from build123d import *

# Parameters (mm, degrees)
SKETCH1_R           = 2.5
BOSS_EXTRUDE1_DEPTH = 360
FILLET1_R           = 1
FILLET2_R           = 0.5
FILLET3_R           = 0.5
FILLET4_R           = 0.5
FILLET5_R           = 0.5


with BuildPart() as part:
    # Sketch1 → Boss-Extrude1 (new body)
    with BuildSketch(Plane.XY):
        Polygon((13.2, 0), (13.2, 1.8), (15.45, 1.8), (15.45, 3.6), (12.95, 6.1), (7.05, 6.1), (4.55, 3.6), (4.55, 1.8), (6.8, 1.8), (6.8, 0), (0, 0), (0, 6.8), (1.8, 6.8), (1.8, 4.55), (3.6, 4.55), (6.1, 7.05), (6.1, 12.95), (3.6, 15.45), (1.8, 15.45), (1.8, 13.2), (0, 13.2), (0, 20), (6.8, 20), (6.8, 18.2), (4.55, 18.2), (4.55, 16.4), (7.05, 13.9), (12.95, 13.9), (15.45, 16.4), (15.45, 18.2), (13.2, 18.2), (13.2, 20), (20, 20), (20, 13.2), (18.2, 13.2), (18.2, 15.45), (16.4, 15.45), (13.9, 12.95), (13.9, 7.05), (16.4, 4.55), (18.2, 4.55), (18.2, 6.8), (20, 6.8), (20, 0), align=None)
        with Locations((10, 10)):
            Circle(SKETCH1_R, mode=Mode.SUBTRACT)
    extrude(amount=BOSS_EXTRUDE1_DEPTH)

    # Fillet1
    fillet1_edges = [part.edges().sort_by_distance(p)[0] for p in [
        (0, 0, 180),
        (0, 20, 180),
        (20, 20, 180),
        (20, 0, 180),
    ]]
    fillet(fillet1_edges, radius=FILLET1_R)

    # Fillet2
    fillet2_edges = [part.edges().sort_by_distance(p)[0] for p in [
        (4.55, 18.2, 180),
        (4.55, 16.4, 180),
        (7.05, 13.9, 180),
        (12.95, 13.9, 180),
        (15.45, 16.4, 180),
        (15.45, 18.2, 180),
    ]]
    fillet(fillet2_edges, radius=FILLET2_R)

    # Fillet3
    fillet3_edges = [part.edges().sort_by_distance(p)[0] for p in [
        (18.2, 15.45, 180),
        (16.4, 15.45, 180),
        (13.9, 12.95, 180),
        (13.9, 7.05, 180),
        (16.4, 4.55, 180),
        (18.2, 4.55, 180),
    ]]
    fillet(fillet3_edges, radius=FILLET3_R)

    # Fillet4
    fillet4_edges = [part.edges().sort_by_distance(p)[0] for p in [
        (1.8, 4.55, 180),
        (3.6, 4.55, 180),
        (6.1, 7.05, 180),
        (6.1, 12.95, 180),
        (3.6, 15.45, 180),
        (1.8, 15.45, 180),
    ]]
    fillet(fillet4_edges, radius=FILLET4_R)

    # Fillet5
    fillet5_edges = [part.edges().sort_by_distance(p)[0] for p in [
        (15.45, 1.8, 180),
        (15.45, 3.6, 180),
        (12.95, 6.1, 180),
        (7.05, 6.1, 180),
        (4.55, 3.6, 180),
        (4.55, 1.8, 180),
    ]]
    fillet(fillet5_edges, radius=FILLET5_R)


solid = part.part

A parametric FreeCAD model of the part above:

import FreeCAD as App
import Part
import Sketcher
from FreeCAD import Vector


def edges_at(feature, points):
    """Names of the edges that pass closest to the given points."""
    edges = feature.Shape.Edges
    near = lambda p: min(range(len(edges)), key=lambda i: edges[i].distToShape(Part.Vertex(*p))[0])
    return sorted({f"Edge{near(p) + 1}" for p in points})

doc = App.newDocument("Part")
params = doc.addObject("Spreadsheet::Sheet", "Params")
for row, (alias, value) in enumerate([
    ("sketch1_diameter", "5 mm"),
    ("sketch1_width", "6.8 mm"),
    ("sketch1_width2", "1.8 mm"),
    ("sketch1_width3", "5.9 mm"),
    ("sketch1_width4", "2.25 mm"),
    ("pad1_length", "360 mm"),
    ("fillet_radius", "1 mm"),
    ("fillet2_radius", "0.5 mm"),
    ("fillet3_radius", "0.5 mm"),
    ("fillet4_radius", "0.5 mm"),
    ("fillet5_radius", "0.5 mm"),
], start=1):
    params.set(f"A{row}", alias)
    params.set(f"B{row}", "=" + value)
    params.setAlias(f"B{row}", alias)

body = doc.addObject("PartDesign::Body", "Body")

# Sketch on XY plane
sketch1 = body.newObject("Sketcher::SketchObject", "Sketch")
sketch1.AttachmentSupport = (doc.getObject("XY_Plane"), [""])
sketch1.MapMode = "FlatFace"
sketch1.addGeometry([
    Part.LineSegment(Vector(13.2, 1.8, 0), Vector(13.2, 0, 0)),  # 0
    Part.LineSegment(Vector(13.2, 0, 0), Vector(20, 0, 0)),  # 1
    Part.LineSegment(Vector(20, 0, 0), Vector(20, 6.8, 0)),  # 2
    Part.LineSegment(Vector(20, 6.8, 0), Vector(18.2, 6.8, 0)),  # 3
    Part.LineSegment(Vector(18.2, 6.8, 0), Vector(18.2, 4.5, 0)),  # 4
    Part.LineSegment(Vector(18.2, 4.5, 0), Vector(16.4, 4.5, 0)),  # 5
    Part.LineSegment(Vector(16.4, 4.5, 0), Vector(13.9, 7, 0)),  # 6
    Part.LineSegment(Vector(13.9, 7, 0), Vector(13.9, 12.9, 0)),  # 7
    Part.LineSegment(Vector(13.9, 12.9, 0), Vector(16.4, 15.4, 0)),  # 8
    Part.LineSegment(Vector(16.4, 15.4, 0), Vector(18.2, 15.4, 0)),  # 9
    Part.LineSegment(Vector(18.2, 15.4, 0), Vector(18.2, 13.2, 0)),  # 10
    Part.LineSegment(Vector(18.2, 13.2, 0), Vector(20, 13.2, 0)),  # 11
    Part.LineSegment(Vector(20, 13.2, 0), Vector(20, 20, 0)),  # 12
    Part.LineSegment(Vector(20, 20, 0), Vector(13.2, 20, 0)),  # 13
    Part.LineSegment(Vector(13.2, 20, 0), Vector(13.2, 18.2, 0)),  # 14
    Part.LineSegment(Vector(13.2, 18.2, 0), Vector(15.4, 18.2, 0)),  # 15
    Part.LineSegment(Vector(15.4, 18.2, 0), Vector(15.4, 16.4, 0)),  # 16
    Part.LineSegment(Vector(15.4, 16.4, 0), Vector(12.9, 13.9, 0)),  # 17
    Part.LineSegment(Vector(12.9, 13.9, 0), Vector(7, 13.9, 0)),  # 18
    Part.LineSegment(Vector(7, 13.9, 0), Vector(4.5, 16.4, 0)),  # 19
    Part.LineSegment(Vector(4.5, 16.4, 0), Vector(4.5, 18.2, 0)),  # 20
    Part.LineSegment(Vector(4.5, 18.2, 0), Vector(6.8, 18.2, 0)),  # 21
    Part.LineSegment(Vector(6.8, 18.2, 0), Vector(6.8, 20, 0)),  # 22
    Part.LineSegment(Vector(6.8, 20, 0), Vector(0, 20, 0)),  # 23
    Part.LineSegment(Vector(0, 20, 0), Vector(0, 13.2, 0)),  # 24
    Part.LineSegment(Vector(0, 13.2, 0), Vector(1.8, 13.2, 0)),  # 25
    Part.LineSegment(Vector(1.8, 13.2, 0), Vector(1.8, 15.4, 0)),  # 26
    Part.LineSegment(Vector(1.8, 15.4, 0), Vector(3.6, 15.4, 0)),  # 27
    Part.LineSegment(Vector(3.6, 15.4, 0), Vector(6.1, 12.9, 0)),  # 28
    Part.LineSegment(Vector(6.1, 12.9, 0), Vector(6.1, 7, 0)),  # 29
    Part.LineSegment(Vector(6.1, 7, 0), Vector(3.6, 4.5, 0)),  # 30
    Part.LineSegment(Vector(3.6, 4.5, 0), Vector(1.8, 4.5, 0)),  # 31
    Part.LineSegment(Vector(1.8, 4.5, 0), Vector(1.8, 6.8, 0)),  # 32
    Part.LineSegment(Vector(1.8, 6.8, 0), Vector(0, 6.8, 0)),  # 33
    Part.LineSegment(Vector(0, 6.8, 0), Vector(0, 0, 0)),  # 34
    Part.LineSegment(Vector(0, 0, 0), Vector(6.8, 0, 0)),  # 35
    Part.LineSegment(Vector(6.8, 0, 0), Vector(6.8, 1.8, 0)),  # 36
    Part.LineSegment(Vector(6.8, 1.8, 0), Vector(4.5, 1.8, 0)),  # 37
    Part.LineSegment(Vector(4.5, 1.8, 0), Vector(4.5, 3.6, 0)),  # 38
    Part.LineSegment(Vector(4.5, 3.6, 0), Vector(7, 6.1, 0)),  # 39
    Part.LineSegment(Vector(7, 6.1, 0), Vector(12.9, 6.1, 0)),  # 40
    Part.LineSegment(Vector(12.9, 6.1, 0), Vector(15.4, 3.6, 0)),  # 41
    Part.LineSegment(Vector(15.4, 3.6, 0), Vector(15.4, 1.8, 0)),  # 42
    Part.LineSegment(Vector(15.4, 1.8, 0), Vector(13.2, 1.8, 0)),  # 43
    Part.Circle(Vector(10, 10, 0), Vector(0, 0, 1), 2.5),  # 44
], False)
sketch1.addConstraint([
    Sketcher.Constraint("Coincident", 0, 2, 1, 1),
    Sketcher.Constraint("Coincident", 1, 2, 2, 1),
    Sketcher.Constraint("Coincident", 2, 2, 3, 1),
    Sketcher.Constraint("Coincident", 3, 2, 4, 1),
    Sketcher.Constraint("Coincident", 4, 2, 5, 1),
    Sketcher.Constraint("Coincident", 5, 2, 6, 1),
    Sketcher.Constraint("Coincident", 6, 2, 7, 1),
    Sketcher.Constraint("Coincident", 7, 2, 8, 1),
    Sketcher.Constraint("Coincident", 8, 2, 9, 1),
    Sketcher.Constraint("Coincident", 9, 2, 10, 1),
    Sketcher.Constraint("Coincident", 10, 2, 11, 1),
    Sketcher.Constraint("Coincident", 11, 2, 12, 1),
    Sketcher.Constraint("Coincident", 12, 2, 13, 1),
    Sketcher.Constraint("Coincident", 13, 2, 14, 1),
    Sketcher.Constraint("Coincident", 14, 2, 15, 1),
    Sketcher.Constraint("Coincident", 15, 2, 16, 1),
    Sketcher.Constraint("Coincident", 16, 2, 17, 1),
    Sketcher.Constraint("Coincident", 17, 2, 18, 1),
    Sketcher.Constraint("Coincident", 18, 2, 19, 1),
    Sketcher.Constraint("Coincident", 19, 2, 20, 1),
    Sketcher.Constraint("Coincident", 20, 2, 21, 1),
    Sketcher.Constraint("Coincident", 21, 2, 22, 1),
    Sketcher.Constraint("Coincident", 22, 2, 23, 1),
    Sketcher.Constraint("Coincident", 23, 2, 24, 1),
    Sketcher.Constraint("Coincident", 24, 2, 25, 1),
    Sketcher.Constraint("Coincident", 25, 2, 26, 1),
    Sketcher.Constraint("Coincident", 26, 2, 27, 1),
    Sketcher.Constraint("Coincident", 27, 2, 28, 1),
    Sketcher.Constraint("Coincident", 28, 2, 29, 1),
    Sketcher.Constraint("Coincident", 29, 2, 30, 1),
    Sketcher.Constraint("Coincident", 30, 2, 31, 1),
    Sketcher.Constraint("Coincident", 31, 2, 32, 1),
    Sketcher.Constraint("Coincident", 32, 2, 33, 1),
    Sketcher.Constraint("Coincident", 33, 2, 34, 1),
    Sketcher.Constraint("Coincident", 34, 2, 35, 1),
    Sketcher.Constraint("Coincident", 35, 2, 36, 1),
    Sketcher.Constraint("Coincident", 36, 2, 37, 1),
    Sketcher.Constraint("Coincident", 37, 2, 38, 1),
    Sketcher.Constraint("Coincident", 38, 2, 39, 1),
    Sketcher.Constraint("Coincident", 39, 2, 40, 1),
    Sketcher.Constraint("Coincident", 40, 2, 41, 1),
    Sketcher.Constraint("Coincident", 41, 2, 42, 1),
    Sketcher.Constraint("Coincident", 42, 2, 43, 1),
    Sketcher.Constraint("Coincident", 43, 2, 0, 1),
    Sketcher.Constraint("Vertical", 0),
    Sketcher.Constraint("Horizontal", 1),
    Sketcher.Constraint("Vertical", 2),
    Sketcher.Constraint("Horizontal", 3),
    Sketcher.Constraint("Vertical", 4),
    Sketcher.Constraint("Horizontal", 5),
    Sketcher.Constraint("Vertical", 7),
    Sketcher.Constraint("Horizontal", 9),
    Sketcher.Constraint("Vertical", 10),
    Sketcher.Constraint("Horizontal", 11),
    Sketcher.Constraint("Vertical", 12),
    Sketcher.Constraint("Horizontal", 13),
    Sketcher.Constraint("Vertical", 14),
    Sketcher.Constraint("Horizontal", 15),
    Sketcher.Constraint("Vertical", 16),
    Sketcher.Constraint("Horizontal", 18),
    Sketcher.Constraint("Vertical", 20),
    Sketcher.Constraint("Horizontal", 21),
    Sketcher.Constraint("Vertical", 22),
    Sketcher.Constraint("Horizontal", 23),
    Sketcher.Constraint("Vertical", 24),
    Sketcher.Constraint("Horizontal", 25),
    Sketcher.Constraint("Vertical", 26),
    Sketcher.Constraint("Horizontal", 27),
    Sketcher.Constraint("Vertical", 29),
    Sketcher.Constraint("Horizontal", 31),
    Sketcher.Constraint("Vertical", 32),
    Sketcher.Constraint("Horizontal", 33),
    Sketcher.Constraint("Vertical", 34),
    Sketcher.Constraint("Horizontal", 35),
    Sketcher.Constraint("Vertical", 36),
    Sketcher.Constraint("Horizontal", 37),
    Sketcher.Constraint("Vertical", 38),
    Sketcher.Constraint("Horizontal", 40),
    Sketcher.Constraint("Vertical", 42),
    Sketcher.Constraint("Horizontal", 43),
    Sketcher.Constraint("Coincident", 34, 2, -1, 1),
    Sketcher.Constraint("PointOnObject", 0, 2, -1),
    Sketcher.Constraint("PointOnObject", 23, 2, -2),
    Sketcher.Constraint("Perpendicular", 6, 8),
    Sketcher.Constraint("Parallel", 8, 17),
    Sketcher.Constraint("Perpendicular", 17, 19),
    Sketcher.Constraint("Parallel", 19, 28),
    Sketcher.Constraint("Perpendicular", 28, 30),
    Sketcher.Constraint("Parallel", 30, 39),
    Sketcher.Constraint("Perpendicular", 39, 41),
    Sketcher.Constraint("Horizontal", 16, 2, 19, 2),
    Sketcher.Constraint("Horizontal", 15, 2, 20, 2),
    Sketcher.Constraint("Horizontal", 13, 2, 22, 2),
    Sketcher.Constraint("Horizontal", 11, 2, 24, 2),
    Sketcher.Constraint("Horizontal", 9, 2, 26, 2),
    Sketcher.Constraint("Horizontal", 7, 2, 28, 2),
    Sketcher.Constraint("Horizontal", 6, 2, 29, 2),
    Sketcher.Constraint("Horizontal", 5, 2, 30, 2),
    Sketcher.Constraint("Horizontal", 3, 2, 32, 2),
    Sketcher.Constraint("Horizontal", 38, 2, 41, 2),
    Sketcher.Constraint("Horizontal", 37, 2, 42, 2),
    Sketcher.Constraint("Vertical", 5, 2, 8, 2),
    Sketcher.Constraint("Vertical", 4, 2, 9, 2),
    Sketcher.Constraint("Vertical", 2, 2, 11, 2),
    Sketcher.Constraint("Vertical", 0, 2, 13, 2),
    Sketcher.Constraint("Vertical", 27, 2, 30, 2),
    Sketcher.Constraint("Vertical", 26, 2, 31, 2),
    Sketcher.Constraint("Vertical", 22, 2, 35, 2),
    Sketcher.Constraint("Vertical", 20, 2, 37, 2),
    Sketcher.Constraint("Vertical", 18, 2, 39, 2),
    Sketcher.Constraint("Vertical", 17, 2, 40, 2),
    Sketcher.Constraint("Equal", 3, 5),
    Sketcher.Constraint("Equal", 15, 21),
    Sketcher.Constraint("Equal", 13, 23),
    Sketcher.Constraint("Equal", 11, 25),
    Sketcher.Constraint("Equal", 25, 27),
    Sketcher.Constraint("Equal", 33, 0),
    Sketcher.Constraint("Equal", 35, 2),
    Sketcher.Constraint("Equal", 43, 4),
    Sketcher.Constraint("Equal", 40, 7),
    Sketcher.Constraint("Equal", 4, 10),
    Sketcher.Constraint("Equal", 2, 12),
    Sketcher.Constraint("Equal", 0, 14),
    Sketcher.Constraint("Equal", 14, 16),
    Sketcher.Constraint("Equal", 36, 38),
    Sketcher.Constraint("Equal", 8, 17),
    Sketcher.Constraint("Diameter", 44, 5.0),
    Sketcher.Constraint("DistanceX", 1, 1, 1, 2, 6.8),
    Sketcher.Constraint("DistanceX", 3, 2, 3, 1, 1.8),
    Sketcher.Constraint("DistanceX", 18, 2, 18, 1, 5.9),
    Sketcher.Constraint("DistanceX", -1, 1, 44, 3, 10.0),
    Sketcher.Constraint("DistanceY", -1, 1, 44, 3, 10.0),
    Sketcher.Constraint("DistanceX", -1, 1, 1, 2, 20.0),
    Sketcher.Constraint("DistanceX", 15, 1, 15, 2, 2.25),
])
sketch1.setExpression("Constraints[126]", "Params.sketch1_diameter")
sketch1.setExpression("Constraints[127]", "Params.sketch1_width")
sketch1.setExpression("Constraints[128]", "Params.sketch1_width2")
sketch1.setExpression("Constraints[129]", "Params.sketch1_width3")
sketch1.setExpression("Constraints[133]", "Params.sketch1_width4")
pad1 = body.newObject("PartDesign::Pad", "Pad")
pad1.Profile = sketch1
pad1.setExpression("Length", "Params.pad1_length")
doc.recompute()

fillet = body.newObject("PartDesign::Fillet", "Fillet")
fillet.Base = (pad1, edges_at(pad1, [
    (0, 0, 180),
    (0, 20, 180),
    (20, 20, 180),
    (20, 0, 180),
]))
fillet.setExpression("Radius", "Params.fillet_radius")
doc.recompute()

fillet2 = body.newObject("PartDesign::Fillet", "Fillet001")
fillet2.Base = (fillet, edges_at(fillet, [
    (4.55, 18.2, 180),
    (4.55, 16.4, 180),
    (7.05, 13.9, 180),
    (12.95, 13.9, 180),
    (15.45, 16.4, 180),
    (15.45, 18.2, 180),
]))
fillet2.setExpression("Radius", "Params.fillet2_radius")
doc.recompute()

fillet3 = body.newObject("PartDesign::Fillet", "Fillet002")
fillet3.Base = (fillet2, edges_at(fillet2, [
    (18.2, 15.45, 180),
    (16.4, 15.45, 180),
    (13.9, 12.95, 180),
    (13.9, 7.05, 180),
    (16.4, 4.55, 180),
    (18.2, 4.55, 180),
]))
fillet3.setExpression("Radius", "Params.fillet3_radius")
doc.recompute()

fillet4 = body.newObject("PartDesign::Fillet", "Fillet003")
fillet4.Base = (fillet3, edges_at(fillet3, [
    (1.8, 4.55, 180),
    (3.6, 4.55, 180),
    (6.1, 7.05, 180),
    (6.1, 12.95, 180),
    (3.6, 15.45, 180),
    (1.8, 15.45, 180),
]))
fillet4.setExpression("Radius", "Params.fillet4_radius")
doc.recompute()

fillet5 = body.newObject("PartDesign::Fillet", "Fillet004")
fillet5.Base = (fillet4, edges_at(fillet4, [
    (15.45, 1.8, 180),
    (15.45, 3.6, 180),
    (12.95, 6.1, 180),
    (7.05, 6.1, 180),
    (4.55, 3.6, 180),
    (4.55, 1.8, 180),
]))
fillet5.setExpression("Radius", "Params.fillet5_radius")

doc.recompute()
